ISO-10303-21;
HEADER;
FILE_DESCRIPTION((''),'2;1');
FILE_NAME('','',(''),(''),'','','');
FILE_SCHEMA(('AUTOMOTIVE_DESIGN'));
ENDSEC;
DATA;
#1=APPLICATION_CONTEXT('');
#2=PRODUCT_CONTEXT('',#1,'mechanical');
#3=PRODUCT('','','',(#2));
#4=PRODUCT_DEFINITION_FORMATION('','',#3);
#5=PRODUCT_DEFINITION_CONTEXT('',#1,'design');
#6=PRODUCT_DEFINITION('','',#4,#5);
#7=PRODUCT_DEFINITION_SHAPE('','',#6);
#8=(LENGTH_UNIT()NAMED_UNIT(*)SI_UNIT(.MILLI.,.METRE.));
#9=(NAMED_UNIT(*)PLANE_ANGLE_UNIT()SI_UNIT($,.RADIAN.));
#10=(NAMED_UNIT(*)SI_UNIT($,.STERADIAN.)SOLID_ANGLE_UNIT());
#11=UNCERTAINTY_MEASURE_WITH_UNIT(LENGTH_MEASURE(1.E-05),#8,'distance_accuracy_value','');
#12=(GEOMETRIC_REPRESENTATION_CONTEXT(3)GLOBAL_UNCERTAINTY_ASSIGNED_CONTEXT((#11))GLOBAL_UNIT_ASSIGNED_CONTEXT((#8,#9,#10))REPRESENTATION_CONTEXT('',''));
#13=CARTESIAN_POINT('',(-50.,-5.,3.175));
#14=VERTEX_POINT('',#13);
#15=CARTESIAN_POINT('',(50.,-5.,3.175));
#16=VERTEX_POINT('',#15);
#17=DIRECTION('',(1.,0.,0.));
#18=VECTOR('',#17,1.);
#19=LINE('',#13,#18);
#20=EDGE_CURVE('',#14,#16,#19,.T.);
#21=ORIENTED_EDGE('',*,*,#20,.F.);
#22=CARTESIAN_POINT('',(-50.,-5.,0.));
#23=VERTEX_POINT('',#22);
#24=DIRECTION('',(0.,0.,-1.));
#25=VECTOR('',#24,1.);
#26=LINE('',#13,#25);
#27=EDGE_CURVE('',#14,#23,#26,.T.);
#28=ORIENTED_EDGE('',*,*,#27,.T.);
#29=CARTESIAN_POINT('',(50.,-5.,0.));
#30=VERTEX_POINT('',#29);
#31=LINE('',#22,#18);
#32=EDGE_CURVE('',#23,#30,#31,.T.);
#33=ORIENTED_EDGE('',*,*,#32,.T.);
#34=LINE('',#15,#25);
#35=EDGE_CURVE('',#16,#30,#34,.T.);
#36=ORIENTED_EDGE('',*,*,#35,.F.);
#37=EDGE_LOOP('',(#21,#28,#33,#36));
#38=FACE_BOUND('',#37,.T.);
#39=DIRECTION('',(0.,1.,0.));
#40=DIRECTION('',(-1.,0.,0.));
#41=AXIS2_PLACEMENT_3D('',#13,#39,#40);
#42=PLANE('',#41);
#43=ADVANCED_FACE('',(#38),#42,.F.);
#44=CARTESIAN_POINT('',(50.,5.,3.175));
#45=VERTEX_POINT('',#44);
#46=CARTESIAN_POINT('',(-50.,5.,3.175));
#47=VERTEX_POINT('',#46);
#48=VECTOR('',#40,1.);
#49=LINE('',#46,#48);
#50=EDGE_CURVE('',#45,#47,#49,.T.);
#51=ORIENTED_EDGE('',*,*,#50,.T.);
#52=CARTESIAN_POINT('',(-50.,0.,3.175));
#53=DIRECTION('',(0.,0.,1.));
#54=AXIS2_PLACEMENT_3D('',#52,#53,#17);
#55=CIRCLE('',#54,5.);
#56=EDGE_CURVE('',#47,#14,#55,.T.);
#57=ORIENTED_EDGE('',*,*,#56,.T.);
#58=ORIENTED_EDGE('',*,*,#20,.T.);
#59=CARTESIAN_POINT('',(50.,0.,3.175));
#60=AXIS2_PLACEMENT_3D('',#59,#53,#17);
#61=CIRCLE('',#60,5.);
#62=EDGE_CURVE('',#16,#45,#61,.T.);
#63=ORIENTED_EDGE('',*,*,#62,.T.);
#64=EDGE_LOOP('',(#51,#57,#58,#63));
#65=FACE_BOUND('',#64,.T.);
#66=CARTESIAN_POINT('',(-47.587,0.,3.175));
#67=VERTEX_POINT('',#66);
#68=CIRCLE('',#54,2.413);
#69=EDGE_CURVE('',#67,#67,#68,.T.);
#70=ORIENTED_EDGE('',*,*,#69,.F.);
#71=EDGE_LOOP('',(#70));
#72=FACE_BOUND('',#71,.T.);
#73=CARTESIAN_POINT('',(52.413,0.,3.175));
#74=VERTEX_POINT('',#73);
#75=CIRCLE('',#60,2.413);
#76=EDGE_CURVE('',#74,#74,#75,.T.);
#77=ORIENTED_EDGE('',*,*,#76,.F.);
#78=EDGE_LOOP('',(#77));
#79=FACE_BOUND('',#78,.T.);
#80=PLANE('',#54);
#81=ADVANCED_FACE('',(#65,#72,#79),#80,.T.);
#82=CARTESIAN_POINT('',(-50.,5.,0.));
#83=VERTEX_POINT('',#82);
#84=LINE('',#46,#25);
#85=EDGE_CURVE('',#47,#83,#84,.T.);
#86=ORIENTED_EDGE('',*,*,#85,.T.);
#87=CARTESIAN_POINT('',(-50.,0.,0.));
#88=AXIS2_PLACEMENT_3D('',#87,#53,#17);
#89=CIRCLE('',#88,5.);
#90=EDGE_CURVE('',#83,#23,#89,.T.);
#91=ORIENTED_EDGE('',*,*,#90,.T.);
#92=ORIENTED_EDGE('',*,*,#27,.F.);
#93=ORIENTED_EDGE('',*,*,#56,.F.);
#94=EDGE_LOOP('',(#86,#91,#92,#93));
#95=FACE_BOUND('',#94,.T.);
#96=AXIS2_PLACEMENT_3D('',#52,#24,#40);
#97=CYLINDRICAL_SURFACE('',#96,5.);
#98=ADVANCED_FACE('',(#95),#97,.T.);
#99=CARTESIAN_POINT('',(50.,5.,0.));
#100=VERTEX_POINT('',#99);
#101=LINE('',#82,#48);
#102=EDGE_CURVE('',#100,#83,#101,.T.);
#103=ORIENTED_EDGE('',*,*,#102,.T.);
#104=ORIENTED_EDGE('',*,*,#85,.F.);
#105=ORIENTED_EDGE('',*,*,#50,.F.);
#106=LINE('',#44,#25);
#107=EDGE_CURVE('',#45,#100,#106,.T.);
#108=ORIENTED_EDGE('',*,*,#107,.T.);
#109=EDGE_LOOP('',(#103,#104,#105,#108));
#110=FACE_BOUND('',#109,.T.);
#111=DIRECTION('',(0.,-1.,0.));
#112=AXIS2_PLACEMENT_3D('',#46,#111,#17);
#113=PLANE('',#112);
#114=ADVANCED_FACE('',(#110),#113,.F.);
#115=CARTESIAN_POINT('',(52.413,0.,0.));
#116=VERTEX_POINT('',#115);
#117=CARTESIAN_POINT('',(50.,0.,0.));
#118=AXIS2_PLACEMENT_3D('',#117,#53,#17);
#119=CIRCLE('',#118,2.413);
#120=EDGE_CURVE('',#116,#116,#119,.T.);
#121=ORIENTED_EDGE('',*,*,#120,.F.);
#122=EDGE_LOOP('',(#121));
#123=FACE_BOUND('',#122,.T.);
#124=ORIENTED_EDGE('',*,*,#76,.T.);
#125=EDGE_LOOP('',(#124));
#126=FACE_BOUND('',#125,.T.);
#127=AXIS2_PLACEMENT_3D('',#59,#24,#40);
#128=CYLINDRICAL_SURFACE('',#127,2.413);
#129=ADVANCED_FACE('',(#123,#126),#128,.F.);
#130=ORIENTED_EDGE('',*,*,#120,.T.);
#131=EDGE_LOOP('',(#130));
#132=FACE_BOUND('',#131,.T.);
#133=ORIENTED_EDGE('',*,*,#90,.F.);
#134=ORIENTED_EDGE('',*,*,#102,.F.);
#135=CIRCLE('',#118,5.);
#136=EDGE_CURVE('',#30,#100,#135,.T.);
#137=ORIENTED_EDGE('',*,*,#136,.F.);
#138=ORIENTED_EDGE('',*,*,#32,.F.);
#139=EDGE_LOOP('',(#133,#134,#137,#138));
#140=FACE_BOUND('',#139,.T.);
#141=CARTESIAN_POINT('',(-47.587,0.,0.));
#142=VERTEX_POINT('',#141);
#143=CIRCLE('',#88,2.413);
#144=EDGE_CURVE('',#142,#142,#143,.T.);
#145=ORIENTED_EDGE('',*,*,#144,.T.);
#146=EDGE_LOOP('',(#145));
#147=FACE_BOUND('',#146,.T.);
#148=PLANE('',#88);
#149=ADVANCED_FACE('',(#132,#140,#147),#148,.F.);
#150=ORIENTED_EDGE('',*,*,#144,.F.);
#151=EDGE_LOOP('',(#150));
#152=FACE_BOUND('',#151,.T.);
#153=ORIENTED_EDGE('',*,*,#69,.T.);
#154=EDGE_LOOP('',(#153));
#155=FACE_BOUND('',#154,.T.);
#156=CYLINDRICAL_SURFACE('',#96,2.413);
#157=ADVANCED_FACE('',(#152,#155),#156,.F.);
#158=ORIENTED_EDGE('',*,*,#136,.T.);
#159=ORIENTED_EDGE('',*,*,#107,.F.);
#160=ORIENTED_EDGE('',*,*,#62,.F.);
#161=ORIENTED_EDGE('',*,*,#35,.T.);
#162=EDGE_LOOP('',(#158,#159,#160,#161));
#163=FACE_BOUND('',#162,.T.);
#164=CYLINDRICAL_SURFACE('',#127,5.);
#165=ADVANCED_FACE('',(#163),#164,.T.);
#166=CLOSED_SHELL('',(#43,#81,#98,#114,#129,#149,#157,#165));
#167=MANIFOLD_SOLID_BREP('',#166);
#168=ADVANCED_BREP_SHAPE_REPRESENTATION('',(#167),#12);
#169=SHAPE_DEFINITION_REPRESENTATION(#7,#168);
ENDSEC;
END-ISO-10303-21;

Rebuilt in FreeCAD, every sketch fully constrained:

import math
import FreeCAD as App
import Part
import Sketcher
Q = App.Units.Quantity

doc = App.newDocument("Part")
body = doc.addObject("PartDesign::Body", "Body")

sketch1 = body.newObject("Sketcher::SketchObject", "Sketch")
sketch1.AttachmentSupport = (doc.getObject("XY_Plane"), [""])
sketch1.MapMode = "FlatFace"
sketch1.addGeometry([
    Part.LineSegment(App.Vector(50, 5, 0), App.Vector(-50, 5, 0)),
    Part.ArcOfCircle(Part.Circle(App.Vector(-50, 0, 0), App.Vector(0, 0, 1), 5), math.radians(90), math.radians(270)),
    Part.LineSegment(App.Vector(-50, -5, 0), App.Vector(50, -5, 0)),
    Part.ArcOfCircle(Part.Circle(App.Vector(50, 0, 0), App.Vector(0, 0, 1), 5), math.radians(-90), math.radians(90)),
    Part.Circle(App.Vector(50, 0, 0), App.Vector(0, 0, 1), 2.413),
    Part.Circle(App.Vector(-50, 0, 0), App.Vector(0, 0, 1), 2.413),
], False)
sketch1.addConstraint([
    Sketcher.Constraint("Tangent", 0, 2, 1, 1),
    Sketcher.Constraint("Tangent", 1, 2, 2, 1),
    Sketcher.Constraint("Tangent", 2, 2, 3, 1),
    Sketcher.Constraint("Tangent", 3, 2, 0, 1),
    Sketcher.Constraint("Horizontal", 0),
    Sketcher.Constraint("Horizontal", 2),
    Sketcher.Constraint("Coincident", 4, 3, 3, 3),
    Sketcher.Constraint("Coincident", 5, 3, 1, 3),
    Sketcher.Constraint("Equal", 4, 5),
    Sketcher.Constraint("Symmetric", 1, 3, 3, 3, -1, 1),
    Sketcher.Constraint("Radius", 1, Q("5 mm")),
    Sketcher.Constraint("DistanceX", 0, 2, 0, 1, Q("100 mm")),
    Sketcher.Constraint("Diameter", 4, Q("4.826 mm")),
])
pad1 = body.newObject("PartDesign::Pad", "Pad")
pad1.Profile = sketch1
pad1.Length = 3.175

doc.recompute()
